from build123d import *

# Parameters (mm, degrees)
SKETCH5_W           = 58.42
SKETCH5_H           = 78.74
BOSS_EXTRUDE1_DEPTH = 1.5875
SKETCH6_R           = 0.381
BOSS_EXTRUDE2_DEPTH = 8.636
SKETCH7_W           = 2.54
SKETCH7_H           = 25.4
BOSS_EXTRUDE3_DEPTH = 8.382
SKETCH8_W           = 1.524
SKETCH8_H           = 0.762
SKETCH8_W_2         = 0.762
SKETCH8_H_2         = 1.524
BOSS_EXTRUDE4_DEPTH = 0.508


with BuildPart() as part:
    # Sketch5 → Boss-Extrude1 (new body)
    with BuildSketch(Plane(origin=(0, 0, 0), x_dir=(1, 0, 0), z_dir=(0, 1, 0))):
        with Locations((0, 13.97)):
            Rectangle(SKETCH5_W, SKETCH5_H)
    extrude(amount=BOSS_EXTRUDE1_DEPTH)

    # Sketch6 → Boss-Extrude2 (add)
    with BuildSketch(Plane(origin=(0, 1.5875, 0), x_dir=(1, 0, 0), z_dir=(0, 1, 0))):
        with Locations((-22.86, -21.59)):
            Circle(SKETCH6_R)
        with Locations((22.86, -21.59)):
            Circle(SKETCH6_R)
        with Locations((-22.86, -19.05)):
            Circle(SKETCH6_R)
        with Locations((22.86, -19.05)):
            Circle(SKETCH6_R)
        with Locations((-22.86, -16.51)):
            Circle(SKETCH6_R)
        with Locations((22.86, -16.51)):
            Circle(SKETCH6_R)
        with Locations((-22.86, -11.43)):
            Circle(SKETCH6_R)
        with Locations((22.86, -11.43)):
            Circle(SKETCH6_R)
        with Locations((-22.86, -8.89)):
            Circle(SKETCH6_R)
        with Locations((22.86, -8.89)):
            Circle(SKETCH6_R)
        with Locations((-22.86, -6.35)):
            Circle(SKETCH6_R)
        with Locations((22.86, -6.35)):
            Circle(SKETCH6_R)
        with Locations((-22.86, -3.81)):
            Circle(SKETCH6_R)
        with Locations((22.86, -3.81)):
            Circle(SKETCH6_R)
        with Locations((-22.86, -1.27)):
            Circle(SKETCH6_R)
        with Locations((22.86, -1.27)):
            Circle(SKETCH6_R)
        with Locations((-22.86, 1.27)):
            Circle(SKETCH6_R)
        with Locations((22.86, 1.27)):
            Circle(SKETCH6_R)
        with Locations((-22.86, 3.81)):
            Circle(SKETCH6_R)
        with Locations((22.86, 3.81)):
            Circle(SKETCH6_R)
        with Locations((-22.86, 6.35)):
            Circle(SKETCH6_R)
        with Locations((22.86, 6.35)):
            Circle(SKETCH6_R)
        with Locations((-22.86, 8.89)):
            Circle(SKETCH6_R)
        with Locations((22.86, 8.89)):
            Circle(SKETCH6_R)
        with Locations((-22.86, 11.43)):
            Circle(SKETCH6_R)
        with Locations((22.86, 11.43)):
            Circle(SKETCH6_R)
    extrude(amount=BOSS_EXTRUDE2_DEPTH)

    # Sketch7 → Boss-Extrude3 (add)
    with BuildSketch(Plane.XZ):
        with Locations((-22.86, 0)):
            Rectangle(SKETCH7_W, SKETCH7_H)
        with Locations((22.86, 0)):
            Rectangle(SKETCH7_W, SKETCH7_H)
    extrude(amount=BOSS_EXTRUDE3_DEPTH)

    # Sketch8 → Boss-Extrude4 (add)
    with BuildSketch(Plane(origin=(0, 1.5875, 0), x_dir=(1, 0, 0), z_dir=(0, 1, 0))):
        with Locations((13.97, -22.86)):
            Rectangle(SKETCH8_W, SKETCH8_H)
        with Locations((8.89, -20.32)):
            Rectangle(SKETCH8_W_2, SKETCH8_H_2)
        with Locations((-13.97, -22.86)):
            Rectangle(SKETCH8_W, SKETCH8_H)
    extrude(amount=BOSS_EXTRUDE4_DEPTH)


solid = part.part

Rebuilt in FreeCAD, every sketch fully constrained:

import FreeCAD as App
import Part
import Sketcher
from FreeCAD import Vector
Q = App.Units.Quantity

doc = App.newDocument("Part")
body = doc.addObject("PartDesign::Body", "Body")

sketch1 = body.newObject("Sketcher::SketchObject", "Sketch")
sketch1.AttachmentSupport = (doc.getObject("XZ_Plane"), [""])
sketch1.MapMode = "FlatFace"
sketch1.addGeometry([
    Part.LineSegment(Vector(-29.21, -53.34, 0), Vector(-29.21, 25.4, 0)),
    Part.LineSegment(Vector(-29.21, 25.4, 0), Vector(29.21, 25.4, 0)),
    Part.LineSegment(Vector(29.21, 25.4, 0), Vector(29.21, -53.34, 0)),
    Part.LineSegment(Vector(29.21, -53.34, 0), Vector(-29.21, -53.34, 0)),
], False)
sketch1.addConstraint([
    Sketcher.Constraint("Coincident", 0, 2, 1, 1),
    Sketcher.Constraint("Coincident", 1, 2, 2, 1),
    Sketcher.Constraint("Coincident", 2, 2, 3, 1),
    Sketcher.Constraint("Coincident", 3, 2, 0, 1),
    Sketcher.Constraint("Vertical", 0),
    Sketcher.Constraint("Horizontal", 1),
    Sketcher.Constraint("Vertical", 2),
    Sketcher.Constraint("Horizontal", 3),
    Sketcher.Constraint("DistanceX", 1, 1, 1, 2, Q("2.3 in")),
    Sketcher.Constraint("DistanceY", 0, 1, 0, 2, Q("3.1 in")),
    Sketcher.Constraint("DistanceY", -1, 1, 0, 2, Q("1 in")),
    Sketcher.Constraint("DistanceX", 0, 2, -1, 1, Q("1.15 in")),
])
pad1 = body.newObject("PartDesign::Pad", "Pad")
pad1.Profile = sketch1
pad1.Length = Q("0.0625 in")
pad1.Reversed = True

sketch2 = body.newObject("Sketcher::SketchObject", "Sketch001")
sketch2.AttachmentSupport = (doc.getObject("XZ_Plane"), [""])
sketch2.MapMode = "FlatFace"
sketch2.AttachmentOffset = App.Placement(Vector(0, 0, -0.0625 * 25.4), App.Rotation())
sketch2.addGeometry([
    Part.Circle(Vector(-22.86, 21.59, 0), Vector(0, 0, 1), 0.381),
    Part.Circle(Vector(22.86, 21.59, 0), Vector(0, 0, 1), 0.381),
    Part.Circle(Vector(-22.86, 19.05, 0), Vector(0, 0, 1), 0.381),
    Part.Circle(Vector(22.86, 19.05, 0), Vector(0, 0, 1), 0.381),
    Part.Circle(Vector(-22.86, 16.51, 0), Vector(0, 0, 1), 0.381),
    Part.Circle(Vector(22.86, 16.51, 0), Vector(0, 0, 1), 0.381),
    Part.Circle(Vector(-22.86, 11.43, 0), Vector(0, 0, 1), 0.381),
    Part.Circle(Vector(22.86, 11.43, 0), Vector(0, 0, 1), 0.381),
    Part.Circle(Vector(-22.86, 8.89, 0), Vector(0, 0, 1), 0.381),
    Part.Circle(Vector(22.86, 8.89, 0), Vector(0, 0, 1), 0.381),
    Part.Circle(Vector(-22.86, 6.35, 0), Vector(0, 0, 1), 0.381),
    Part.Circle(Vector(22.86, 6.35, 0), Vector(0, 0, 1), 0.381),
    Part.Circle(Vector(-22.86, 3.81, 0), Vector(0, 0, 1), 0.381),
    Part.Circle(Vector(22.86, 3.81, 0), Vector(0, 0, 1), 0.381),
    Part.Circle(Vector(-22.86, 1.27, 0), Vector(0, 0, 1), 0.381),
    Part.Circle(Vector(22.86, 1.27, 0), Vector(0, 0, 1), 0.381),
    Part.Circle(Vector(-22.86, -1.27, 0), Vector(0, 0, 1), 0.381),
    Part.Circle(Vector(22.86, -1.27, 0), Vector(0, 0, 1), 0.381),
    Part.Circle(Vector(-22.86, -3.81, 0), Vector(0, 0, 1), 0.381),
    Part.Circle(Vector(22.86, -3.81, 0), Vector(0, 0, 1), 0.381),
    Part.Circle(Vector(-22.86, -6.35, 0), Vector(0, 0, 1), 0.381),
    Part.Circle(Vector(22.86, -6.35, 0), Vector(0, 0, 1), 0.381),
    Part.Circle(Vector(-22.86, -8.89, 0), Vector(0, 0, 1), 0.381),
    Part.Circle(Vector(22.86, -8.89, 0), Vector(0, 0, 1), 0.381),
    Part.Circle(Vector(-22.86, -11.43, 0), Vector(0, 0, 1), 0.381),
    Part.Circle(Vector(22.86, -11.43, 0), Vector(0, 0, 1), 0.381),
], False)
sketch2.addConstraint([
    Sketcher.Constraint("Equal", 0, 1),
    Sketcher.Constraint("Equal", 1, 2),
    Sketcher.Constraint("Equal", 2, 3),
    Sketcher.Constraint("Equal", 3, 4),
    Sketcher.Constraint("Equal", 4, 5),
    Sketcher.Constraint("Equal", 5, 6),
    Sketcher.Constraint("Equal", 6, 7),
    Sketcher.Constraint("Equal", 7, 8),
    Sketcher.Constraint("Equal", 8, 9),
    Sketcher.Constraint("Equal", 9, 10),
    Sketcher.Constraint("Equal", 10, 11),
    Sketcher.Constraint("Equal", 11, 12),
    Sketcher.Constraint("Equal", 12, 13),
    Sketcher.Constraint("Equal", 13, 14),
    Sketcher.Constraint("Equal", 14, 15),
    Sketcher.Constraint("Equal", 15, 16),
    Sketcher.Constraint("Equal", 16, 17),
    Sketcher.Constraint("Equal", 17, 18),
    Sketcher.Constraint("Equal", 18, 19),
    Sketcher.Constraint("Equal", 19, 20),
    Sketcher.Constraint("Equal", 20, 21),
    Sketcher.Constraint("Equal", 21, 22),
    Sketcher.Constraint("Equal", 22, 23),
    Sketcher.Constraint("Equal", 23, 24),
    Sketcher.Constraint("Equal", 24, 25),
    Sketcher.Constraint("Symmetric", 15, 3, 16, 3, -1, 1),
    Sketcher.Constraint("Symmetric", 14, 3, 17, 3, -1, 1),
    Sketcher.Constraint("Symmetric", 13, 3, 18, 3, -1, 1),
    Sketcher.Constraint("Symmetric", 12, 3, 19, 3, -1, 1),
    Sketcher.Constraint("Symmetric", 11, 3, 20, 3, -1, 1),
    Sketcher.Constraint("Symmetric", 10, 3, 21, 3, -1, 1),
    Sketcher.Constraint("Symmetric", 9, 3, 22, 3, -1, 1),
    Sketcher.Constraint("Symmetric", 8, 3, 23, 3, -1, 1),
    Sketcher.Constraint("Symmetric", 7, 3, 24, 3, -1, 1),
    Sketcher.Constraint("Symmetric", 6, 3, 25, 3, -1, 1),
    Sketcher.Constraint("Symmetric", 0, 3, 1, 3, -2),
    Sketcher.Constraint("Symmetric", 2, 3, 3, 3, -2),
    Sketcher.Constraint("Symmetric", 4, 3, 5, 3, -2),
    Sketcher.Constraint("Symmetric", 6, 3, 7, 3, -2),
    Sketcher.Constraint("Symmetric", 8, 3, 9, 3, -2),
    Sketcher.Constraint("Symmetric", 10, 3, 11, 3, -2),
    Sketcher.Constraint("Symmetric", 12, 3, 13, 3, -2),
    Sketcher.Constraint("Symmetric", 14, 3, 15, 3, -2),
    Sketcher.Constraint("Vertical", 0, 3, 2, 3),
    Sketcher.Constraint("Vertical", 2, 3, 4, 3),
    Sketcher.Constraint("Vertical", 4, 3, 6, 3),
    Sketcher.Constraint("Vertical", 6, 3, 8, 3),
    Sketcher.Constraint("Vertical", 8, 3, 10, 3),
    Sketcher.Constraint("Vertical", 10, 3, 12, 3),
    Sketcher.Constraint("Vertical", 12, 3, 14, 3),
    Sketcher.Constraint("Diameter", 0, Q("0.03 in")),
    Sketcher.Constraint("DistanceX", 0, 3, -1, 1, Q("0.9 in")),
    Sketcher.Constraint("DistanceY", 2, 3, 0, 3, Q("0.1 in")),
    Sketcher.Constraint("DistanceY", 4, 3, 2, 3, Q("0.1 in")),
    Sketcher.Constraint("DistanceY", 6, 3, 4, 3, Q("0.2 in")),
    Sketcher.Constraint("DistanceY", 8, 3, 6, 3, Q("0.1 in")),
    Sketcher.Constraint("DistanceY", 10, 3, 8, 3, Q("0.1 in")),
    Sketcher.Constraint("DistanceY", 12, 3, 10, 3, Q("0.1 in")),
    Sketcher.Constraint("DistanceY", 14, 3, 12, 3, Q("0.1 in")),
    Sketcher.Constraint("DistanceY", 16, 3, 14, 3, Q("0.1 in")),
])
pad2 = body.newObject("PartDesign::Pad", "Pad001")
pad2.Profile = sketch2
pad2.Length = Q("0.34 in")
pad2.Reversed = True

sketch3 = body.newObject("Sketcher::SketchObject", "Sketch002")
sketch3.AttachmentSupport = (doc.getObject("XZ_Plane"), [""])
sketch3.MapMode = "FlatFace"
sketch3.addGeometry([
    Part.LineSegment(Vector(-24.13, 12.7, 0), Vector(-24.13, -12.7, 0)),
    Part.LineSegment(Vector(-24.13, -12.7, 0), Vector(-21.59, -12.7, 0)),
    Part.LineSegment(Vector(-21.59, -12.7, 0), Vector(-21.59, 12.7, 0)),
    Part.LineSegment(Vector(-21.59, 12.7, 0), Vector(-24.13, 12.7, 0)),
    Part.LineSegment(Vector(21.59, 12.7, 0), Vector(21.59, -12.7, 0)),
    Part.LineSegment(Vector(21.59, -12.7, 0), Vector(24.13, -12.7, 0)),
    Part.LineSegment(Vector(24.13, -12.7, 0), Vector(24.13, 12.7, 0)),
    Part.LineSegment(Vector(24.13, 12.7, 0), Vector(21.59, 12.7, 0)),
], False)
sketch3.addConstraint([
    Sketcher.Constraint("Coincident", 0, 2, 1, 1),
    Sketcher.Constraint("Coincident", 1, 2, 2, 1),
    Sketcher.Constraint("Coincident", 2, 2, 3, 1),
    Sketcher.Constraint("Coincident", 3, 2, 0, 1),
    Sketcher.Constraint("Coincident", 4, 2, 5, 1),
    Sketcher.Constraint("Coincident", 5, 2, 6, 1),
    Sketcher.Constraint("Coincident", 6, 2, 7, 1),
    Sketcher.Constraint("Coincident", 7, 2, 4, 1),
    Sketcher.Constraint("Vertical", 0),
    Sketcher.Constraint("Horizontal", 1),
    Sketcher.Constraint("Vertical", 2),
    Sketcher.Constraint("Horizontal", 3),
    Sketcher.Constraint("Vertical", 4),
    Sketcher.Constraint("Horizontal", 5),
    Sketcher.Constraint("Vertical", 6),
    Sketcher.Constraint("Horizontal", 7),
    Sketcher.Constraint("Symmetric", 2, 2, 4, 2, -1, 1),
    Sketcher.Constraint("Symmetric", 0, 2, 6, 2, -1, 1),
    Sketcher.Constraint("Horizontal", 1, 2, 4, 2),
    Sketcher.Constraint("DistanceY", 0, 2, 0, 1, Q("1 in")),
    Sketcher.Constraint("DistanceX", 1, 1, 1, 2, Q("0.1 in")),
    Sketcher.Constraint("DistanceX", 1, 2, 4, 2, Q("1.7 in")),
])
pad3 = body.newObject("PartDesign::Pad", "Pad002")
pad3.Profile = sketch3
pad3.Length = Q("0.33 in")

sketch4 = body.newObject("Sketcher::SketchObject", "Sketch003")
sketch4.AttachmentSupport = (doc.getObject("XZ_Plane"), [""])
sketch4.MapMode = "FlatFace"
sketch4.AttachmentOffset = App.Placement(Vector(0, 0, -0.0625 * 25.4), App.Rotation())
sketch4.addGeometry([
    Part.LineSegment(Vector(13.208, 22.479, 0), Vector(13.208, 23.241, 0)),
    Part.LineSegment(Vector(13.208, 23.241, 0), Vector(14.732, 23.241, 0)),
    Part.LineSegment(Vector(14.732, 23.241, 0), Vector(14.732, 22.479, 0)),
    Part.LineSegment(Vector(14.732, 22.479, 0), Vector(13.208, 22.479, 0)),
    Part.LineSegment(Vector(8.509, 19.558, 0), Vector(8.509, 21.082, 0)),
    Part.LineSegment(Vector(8.509, 21.082, 0), Vector(9.271, 21.082, 0)),
    Part.LineSegment(Vector(9.271, 21.082, 0), Vector(9.271, 19.558, 0)),
    Part.LineSegment(Vector(9.271, 19.558, 0), Vector(8.509, 19.558, 0)),
    Part.LineSegment(Vector(-14.732, 22.479, 0), Vector(-14.732, 23.241, 0)),
    Part.LineSegment(Vector(-14.732, 23.241, 0), Vector(-13.208, 23.241, 0)),
    Part.LineSegment(Vector(-13.208, 23.241, 0), Vector(-13.208, 22.479, 0)),
    Part.LineSegment(Vector(-13.208, 22.479, 0), Vector(-14.732, 22.479, 0)),
], False)
sketch4.addConstraint([
    Sketcher.Constraint("Coincident", 0, 2, 1, 1),
    Sketcher.Constraint("Coincident", 1, 2, 2, 1),
    Sketcher.Constraint("Coincident", 2, 2, 3, 1),
    Sketcher.Constraint("Coincident", 3, 2, 0, 1),
    Sketcher.Constraint("Coincident", 4, 2, 5, 1),
    Sketcher.Constraint("Coincident", 5, 2, 6, 1),
    Sketcher.Constraint("Coincident", 6, 2, 7, 1),
    Sketcher.Constraint("Coincident", 7, 2, 4, 1),
    Sketcher.Constraint("Coincident", 8, 2, 9, 1),
    Sketcher.Constraint("Coincident", 9, 2, 10, 1),
    Sketcher.Constraint("Coincident", 10, 2, 11, 1),
    Sketcher.Constraint("Coincident", 11, 2, 8, 1),
    Sketcher.Constraint("Vertical", 0),
    Sketcher.Constraint("Horizontal", 1),
    Sketcher.Constraint("Vertical", 2),
    Sketcher.Constraint("Horizontal", 3),
    Sketcher.Constraint("Vertical", 4),
    Sketcher.Constraint("Horizontal", 5),
    Sketcher.Constraint("Vertical", 6),
    Sketcher.Constraint("Horizontal", 7),
    Sketcher.Constraint("Vertical", 8),
    Sketcher.Constraint("Horizontal", 9),
    Sketcher.Constraint("Vertical", 10),
    Sketcher.Constraint("Horizontal", 11),
    Sketcher.Constraint("Symmetric", 1, 2, 8, 2, -2),
    Sketcher.Constraint("Symmetric", 3, 2, 10, 2, -2),
    Sketcher.Constraint("Equal", 7, 0),
    Sketcher.Constraint("Equal", 11, 4),
    Sketcher.Constraint("DistanceX", 1, 1, 1, 2, Q("0.06 in")),
    Sketcher.Constraint("DistanceX", 5, 1, 5, 2, Q("0.03 in")),
    Sketcher.Constraint("DistanceX", 8, 2, 0, 2, Q("1.1 in")),
    Sketcher.Constraint("DistanceY", -1, 1, 4, 2, Q("0.83 in")),
    Sketcher.Constraint("DistanceY", -1, 1, 0, 2, Q("0.915 in")),
    Sketcher.Constraint("DistanceX", -1, 1, 4, 2, Q("0.335 in")),
])
pad4 = body.newObject("PartDesign::Pad", "Pad003")
pad4.Profile = sketch4
pad4.Length = Q("0.02 in")
pad4.Reversed = True

doc.recompute()
